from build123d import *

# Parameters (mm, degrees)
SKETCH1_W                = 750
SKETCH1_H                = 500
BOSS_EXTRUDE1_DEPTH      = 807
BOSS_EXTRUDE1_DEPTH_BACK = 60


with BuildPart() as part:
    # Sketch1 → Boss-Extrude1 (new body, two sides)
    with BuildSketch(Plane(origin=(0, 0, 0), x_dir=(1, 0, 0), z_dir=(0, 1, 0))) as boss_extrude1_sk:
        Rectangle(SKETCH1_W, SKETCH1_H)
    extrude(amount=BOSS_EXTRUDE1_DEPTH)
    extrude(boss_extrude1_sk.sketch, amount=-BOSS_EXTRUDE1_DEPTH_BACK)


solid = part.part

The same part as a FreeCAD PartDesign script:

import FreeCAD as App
import Part
import Sketcher

V = App.Vector
Q = App.Units.Quantity


def add_polygon(sketch, points):
    """Adds a closed chain of lines whose ends are joined by coincident constraints."""
    first, n = sketch.GeometryCount, len(points)
    for a, b in zip(points, points[1:] + points[:1]):
        sketch.addGeometry(Part.LineSegment(App.Vector(*a, 0), App.Vector(*b, 0)), False)
    for i in range(n):
        sketch.addConstraint(Sketcher.Constraint("Coincident", first + i, 2, first + (i + 1) % n, 1))

doc = App.newDocument("Part")
body = doc.addObject("PartDesign::Body", "Body")

sketch1 = doc.addObject("Sketcher::SketchObject", "Sketch")
body.addObject(sketch1)
sketch1.AttachmentSupport = (doc.XZ_Plane, [""])
sketch1.MapMode = "FlatFace"
add_polygon(sketch1, [(-375, -250), (-375, 250), (375, 250), (375, -250)])
sketch1.addConstraint([
    Sketcher.Constraint("Vertical", 0),
    Sketcher.Constraint("Horizontal", 1),
    Sketcher.Constraint("Vertical", 2),
    Sketcher.Constraint("Horizontal", 3),
    Sketcher.Constraint("Symmetric", 0, 2, 2, 2, -1, 1),
    Sketcher.Constraint("DistanceX", 1, 1, 1, 2, Q("750 mm")),
    Sketcher.Constraint("DistanceY", 0, 1, 0, 2, Q("500 mm")),
])
pad1 = doc.addObject("PartDesign::Pad", "Pad")
body.addObject(pad1)
pad1.Profile = sketch1
pad1.Type = "TwoLengths"
pad1.Length = 807
pad1.Length2 = 60
pad1.Reversed = True

doc.recompute()
